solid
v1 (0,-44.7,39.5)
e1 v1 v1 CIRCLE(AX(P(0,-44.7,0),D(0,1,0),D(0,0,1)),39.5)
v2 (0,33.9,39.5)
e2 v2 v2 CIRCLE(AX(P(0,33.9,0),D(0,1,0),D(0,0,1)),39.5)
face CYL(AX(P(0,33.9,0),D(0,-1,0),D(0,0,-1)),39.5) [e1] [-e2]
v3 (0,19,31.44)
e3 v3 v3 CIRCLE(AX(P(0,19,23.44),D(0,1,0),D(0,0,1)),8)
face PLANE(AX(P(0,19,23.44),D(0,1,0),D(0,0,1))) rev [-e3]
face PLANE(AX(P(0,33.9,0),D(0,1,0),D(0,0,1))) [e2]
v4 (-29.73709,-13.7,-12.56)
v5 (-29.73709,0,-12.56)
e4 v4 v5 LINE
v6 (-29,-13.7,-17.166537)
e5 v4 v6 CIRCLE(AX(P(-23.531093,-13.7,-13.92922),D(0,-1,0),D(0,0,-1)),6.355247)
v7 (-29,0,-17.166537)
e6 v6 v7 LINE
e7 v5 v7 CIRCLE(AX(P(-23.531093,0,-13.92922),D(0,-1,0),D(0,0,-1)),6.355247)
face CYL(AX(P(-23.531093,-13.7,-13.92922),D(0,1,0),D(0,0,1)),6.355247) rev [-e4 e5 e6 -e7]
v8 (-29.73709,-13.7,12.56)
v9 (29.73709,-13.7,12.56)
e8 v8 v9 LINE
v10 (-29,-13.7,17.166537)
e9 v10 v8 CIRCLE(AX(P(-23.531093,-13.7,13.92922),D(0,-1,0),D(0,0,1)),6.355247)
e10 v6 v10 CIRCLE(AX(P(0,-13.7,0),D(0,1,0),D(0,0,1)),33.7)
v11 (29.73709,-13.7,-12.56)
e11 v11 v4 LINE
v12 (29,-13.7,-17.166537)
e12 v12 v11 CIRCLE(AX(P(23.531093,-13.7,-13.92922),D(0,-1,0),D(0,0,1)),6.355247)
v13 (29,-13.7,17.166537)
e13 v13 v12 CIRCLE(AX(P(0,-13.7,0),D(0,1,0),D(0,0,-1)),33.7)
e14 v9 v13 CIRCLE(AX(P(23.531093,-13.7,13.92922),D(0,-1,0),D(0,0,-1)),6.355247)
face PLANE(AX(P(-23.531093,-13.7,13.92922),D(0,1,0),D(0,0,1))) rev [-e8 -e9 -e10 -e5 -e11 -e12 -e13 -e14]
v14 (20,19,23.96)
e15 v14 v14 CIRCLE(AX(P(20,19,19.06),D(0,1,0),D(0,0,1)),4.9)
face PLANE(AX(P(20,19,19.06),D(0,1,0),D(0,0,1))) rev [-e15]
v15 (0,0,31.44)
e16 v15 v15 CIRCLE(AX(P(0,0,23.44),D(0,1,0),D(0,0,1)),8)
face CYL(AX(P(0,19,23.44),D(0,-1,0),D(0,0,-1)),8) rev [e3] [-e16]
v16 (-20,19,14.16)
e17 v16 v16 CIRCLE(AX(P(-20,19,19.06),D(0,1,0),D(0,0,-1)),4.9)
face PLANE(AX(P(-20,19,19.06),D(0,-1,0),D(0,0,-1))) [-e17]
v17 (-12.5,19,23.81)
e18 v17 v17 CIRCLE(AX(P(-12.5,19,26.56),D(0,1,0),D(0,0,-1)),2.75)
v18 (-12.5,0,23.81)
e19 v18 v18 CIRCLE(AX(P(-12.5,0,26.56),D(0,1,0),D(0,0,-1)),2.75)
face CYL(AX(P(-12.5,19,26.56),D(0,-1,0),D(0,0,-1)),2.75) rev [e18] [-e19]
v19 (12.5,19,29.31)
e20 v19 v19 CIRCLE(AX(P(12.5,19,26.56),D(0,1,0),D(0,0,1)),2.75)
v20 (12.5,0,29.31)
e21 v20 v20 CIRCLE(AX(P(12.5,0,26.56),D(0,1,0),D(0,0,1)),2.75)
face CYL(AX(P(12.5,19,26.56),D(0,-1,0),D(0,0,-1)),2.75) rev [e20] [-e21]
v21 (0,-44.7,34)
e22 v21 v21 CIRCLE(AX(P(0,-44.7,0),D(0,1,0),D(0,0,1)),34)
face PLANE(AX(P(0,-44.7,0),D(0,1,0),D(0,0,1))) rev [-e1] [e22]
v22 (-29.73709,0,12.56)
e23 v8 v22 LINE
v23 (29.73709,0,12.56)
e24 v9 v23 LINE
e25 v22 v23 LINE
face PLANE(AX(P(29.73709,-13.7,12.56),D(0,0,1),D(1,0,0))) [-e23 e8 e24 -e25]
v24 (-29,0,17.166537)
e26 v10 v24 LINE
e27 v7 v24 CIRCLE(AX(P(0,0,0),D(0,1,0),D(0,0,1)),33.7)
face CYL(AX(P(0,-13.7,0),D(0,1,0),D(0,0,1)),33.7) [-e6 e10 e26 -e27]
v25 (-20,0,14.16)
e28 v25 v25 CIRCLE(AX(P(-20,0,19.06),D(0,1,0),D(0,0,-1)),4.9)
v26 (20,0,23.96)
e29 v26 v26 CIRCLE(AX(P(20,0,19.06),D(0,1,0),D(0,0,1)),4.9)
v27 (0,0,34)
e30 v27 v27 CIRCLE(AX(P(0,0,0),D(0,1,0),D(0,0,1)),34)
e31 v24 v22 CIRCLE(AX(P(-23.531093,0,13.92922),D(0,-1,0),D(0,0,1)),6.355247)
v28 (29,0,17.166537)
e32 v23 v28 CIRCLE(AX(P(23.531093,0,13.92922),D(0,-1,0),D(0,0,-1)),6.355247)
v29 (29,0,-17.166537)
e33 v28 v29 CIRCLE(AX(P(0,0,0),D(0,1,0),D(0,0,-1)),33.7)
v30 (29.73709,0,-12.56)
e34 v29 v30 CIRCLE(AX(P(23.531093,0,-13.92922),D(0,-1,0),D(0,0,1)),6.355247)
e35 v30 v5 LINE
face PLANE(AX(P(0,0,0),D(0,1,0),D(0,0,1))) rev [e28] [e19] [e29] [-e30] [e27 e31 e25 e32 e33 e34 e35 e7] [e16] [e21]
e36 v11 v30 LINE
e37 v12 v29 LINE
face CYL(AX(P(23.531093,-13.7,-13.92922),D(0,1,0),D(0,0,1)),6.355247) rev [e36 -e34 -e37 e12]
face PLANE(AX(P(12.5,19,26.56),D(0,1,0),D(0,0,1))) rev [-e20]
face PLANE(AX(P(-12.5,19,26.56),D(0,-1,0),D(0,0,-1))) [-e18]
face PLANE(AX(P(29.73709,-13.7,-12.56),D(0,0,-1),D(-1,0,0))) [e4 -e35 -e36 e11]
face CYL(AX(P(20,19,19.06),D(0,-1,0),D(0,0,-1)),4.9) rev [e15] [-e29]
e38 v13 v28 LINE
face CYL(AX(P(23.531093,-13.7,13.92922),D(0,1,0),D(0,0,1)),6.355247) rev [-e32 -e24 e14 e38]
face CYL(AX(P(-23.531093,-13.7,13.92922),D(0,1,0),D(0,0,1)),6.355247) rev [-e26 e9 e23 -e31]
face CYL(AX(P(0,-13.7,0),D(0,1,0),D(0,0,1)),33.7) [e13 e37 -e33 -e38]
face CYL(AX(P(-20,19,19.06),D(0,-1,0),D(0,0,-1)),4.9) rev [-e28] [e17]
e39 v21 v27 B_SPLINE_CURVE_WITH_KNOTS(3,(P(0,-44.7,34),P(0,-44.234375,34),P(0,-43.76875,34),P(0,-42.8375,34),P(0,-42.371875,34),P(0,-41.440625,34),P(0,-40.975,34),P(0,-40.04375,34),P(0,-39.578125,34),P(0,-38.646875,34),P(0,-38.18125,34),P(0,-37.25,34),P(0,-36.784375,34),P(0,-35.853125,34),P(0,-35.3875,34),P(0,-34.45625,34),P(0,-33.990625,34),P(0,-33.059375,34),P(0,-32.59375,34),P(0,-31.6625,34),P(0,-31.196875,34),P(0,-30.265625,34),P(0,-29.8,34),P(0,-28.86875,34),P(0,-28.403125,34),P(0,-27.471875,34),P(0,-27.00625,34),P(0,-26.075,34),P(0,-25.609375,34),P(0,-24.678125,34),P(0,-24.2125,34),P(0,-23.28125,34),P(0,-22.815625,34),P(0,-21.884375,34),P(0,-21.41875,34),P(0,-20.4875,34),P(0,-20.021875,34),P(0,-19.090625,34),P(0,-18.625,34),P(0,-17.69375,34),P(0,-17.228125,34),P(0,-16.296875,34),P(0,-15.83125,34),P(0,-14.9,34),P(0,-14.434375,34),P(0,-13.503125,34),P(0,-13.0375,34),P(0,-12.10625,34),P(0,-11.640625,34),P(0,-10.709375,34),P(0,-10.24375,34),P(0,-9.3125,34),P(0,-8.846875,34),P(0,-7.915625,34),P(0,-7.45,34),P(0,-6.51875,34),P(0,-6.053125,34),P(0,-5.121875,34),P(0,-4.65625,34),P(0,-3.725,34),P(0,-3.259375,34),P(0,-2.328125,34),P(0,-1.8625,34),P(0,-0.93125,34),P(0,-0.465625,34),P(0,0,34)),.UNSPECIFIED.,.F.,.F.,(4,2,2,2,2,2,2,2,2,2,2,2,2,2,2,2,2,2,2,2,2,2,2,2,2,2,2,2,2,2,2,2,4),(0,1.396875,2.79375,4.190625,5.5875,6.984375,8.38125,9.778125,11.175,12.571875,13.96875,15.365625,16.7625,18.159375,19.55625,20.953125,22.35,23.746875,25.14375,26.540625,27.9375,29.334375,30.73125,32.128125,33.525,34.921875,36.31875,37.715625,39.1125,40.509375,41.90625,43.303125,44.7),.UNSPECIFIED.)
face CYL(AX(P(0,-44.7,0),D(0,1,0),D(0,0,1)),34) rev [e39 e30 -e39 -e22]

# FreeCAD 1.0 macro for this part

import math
import FreeCAD as App
import Part
import Sketcher

V = App.Vector

doc = App.newDocument("Part")
body = doc.addObject("PartDesign::Body", "Body")

sketch1 = doc.addObject("Sketcher::SketchObject", "Sketch")
body.addObject(sketch1)
sketch1.AttachmentSupport = (doc.XZ_Plane, [""])
sketch1.MapMode = "FlatFace"
sketch1.addGeometry(Part.Circle(V(0, 0, 0), V(0, 0, 1), 40), False)
sketch1.addConstraint(Sketcher.Constraint("Coincident", 0, 3, -1, 1))
sketch1.addConstraint(Sketcher.Constraint("Diameter", 0, 79.0))
pad1 = doc.addObject("PartDesign::Pad", "Pad")
body.addObject(pad1)
pad1.Profile = sketch1
pad1.Length = 33.9
pad1.Reversed = True

sketch2 = doc.addObject("Sketcher::SketchObject", "Sketch001")
body.addObject(sketch2)
sketch2.AttachmentSupport = (doc.XZ_Plane, [""])
sketch2.MapMode = "FlatFace"
sketch2.addGeometry(Part.LineSegment(V(29.7, -12.6, 0), V(-29.7, -12.6, 0)), False)
sketch2.addGeometry(Part.ArcOfCircle(Part.Circle(V(-23.5, -13.9, 0), V(0, 0, 1), 6.4), math.radians(168), math.radians(211)), False)
sketch2.addGeometry(Part.ArcOfCircle(Part.Circle(V(0, 0, 0), V(0, 0, 1), 33.7), math.radians(149), math.radians(211)), False)
sketch2.addGeometry(Part.ArcOfCircle(Part.Circle(V(-23.5, 13.9, 0), V(0, 0, 1), 6.4), math.radians(149), math.radians(192)), False)
sketch2.addGeometry(Part.LineSegment(V(-29.7, 12.6, 0), V(29.7, 12.6, 0)), False)
sketch2.addGeometry(Part.ArcOfCircle(Part.Circle(V(23.5, 13.9, 0), V(0, 0, 1), 6.4), math.radians(-12), math.radians(31)), False)
sketch2.addGeometry(Part.ArcOfCircle(Part.Circle(V(0, 0, 0), V(0, 0, 1), 33.7), math.radians(-31), math.radians(31)), False)
sketch2.addGeometry(Part.ArcOfCircle(Part.Circle(V(23.5, -13.9, 0), V(0, 0, 1), 6.4), math.radians(-31), math.radians(12)), False)
sketch2.addConstraint(Sketcher.Constraint("Coincident", 0, 2, 1, 1))
sketch2.addConstraint(Sketcher.Constraint("Tangent", 1, 2, 2, 2))
sketch2.addConstraint(Sketcher.Constraint("Tangent", 2, 1, 3, 1))
sketch2.addConstraint(Sketcher.Constraint("Coincident", 3, 2, 4, 1))
sketch2.addConstraint(Sketcher.Constraint("Coincident", 4, 2, 5, 1))
sketch2.addConstraint(Sketcher.Constraint("Tangent", 5, 2, 6, 2))
sketch2.addConstraint(Sketcher.Constraint("Tangent", 6, 1, 7, 1))
sketch2.addConstraint(Sketcher.Constraint("Coincident", 7, 2, 0, 1))
sketch2.addConstraint(Sketcher.Constraint("Horizontal", 0))
sketch2.addConstraint(Sketcher.Constraint("Horizontal", 4))
sketch2.addConstraint(Sketcher.Constraint("Coincident", 2, 3, -1, 1))
sketch2.addConstraint(Sketcher.Constraint("Coincident", 6, 3, -1, 1))
sketch2.addConstraint(Sketcher.Constraint("Equal", 1, 3))
sketch2.addConstraint(Sketcher.Constraint("Equal", 3, 5))
sketch2.addConstraint(Sketcher.Constraint("Equal", 2, 6))
sketch2.addConstraint(Sketcher.Constraint("Equal", 5, 7))
sketch2.addConstraint(Sketcher.Constraint("Symmetric", 0, 2, 4, 2, -1, 1))
sketch2.addConstraint(Sketcher.Constraint("Horizontal", 3, 3, 5, 3))
sketch2.addConstraint(Sketcher.Constraint("Horizontal", 1, 3, 7, 3))
sketch2.addConstraint(Sketcher.Constraint("Radius", 2, 33.7))
sketch2.addConstraint(Sketcher.Constraint("DistanceX", 1, 2, -1, 1, 29.0))
sketch2.addConstraint(Sketcher.Constraint("DistanceY", 0, 2, -1, 1, 12.56))
sketch2.addConstraint(Sketcher.Constraint("Radius", 1, 6.355247))
pad2 = doc.addObject("PartDesign::Pad", "Pad001")
body.addObject(pad2)
pad2.Profile = sketch2
pad2.Length = 13.7

sketch3 = doc.addObject("Sketcher::SketchObject", "Sketch002")
body.addObject(sketch3)
sketch3.AttachmentSupport = (doc.XZ_Plane, [""])
sketch3.MapMode = "FlatFace"
sketch3.AttachmentOffset = App.Placement(V(0, 0, 44.7), App.Rotation())
sketch3.addGeometry(Part.Circle(V(0, 0, 0), V(0, 0, 1), 40), False)
sketch3.addGeometry(Part.Circle(V(0, 0, 0), V(0, 0, 1), 34), False)
sketch3.addConstraint(Sketcher.Constraint("Coincident", 0, 3, -1, 1))
sketch3.addConstraint(Sketcher.Constraint("Coincident", 1, 3, -1, 1))
sketch3.addConstraint(Sketcher.Constraint("Diameter", 0, 79.0))
sketch3.addConstraint(Sketcher.Constraint("Diameter", 1, 68.0))
pad3 = doc.addObject("PartDesign::Pad", "Pad002")
body.addObject(pad3)
pad3.Profile = sketch3
pad3.Length = 44.7
pad3.Reversed = True

sketch4 = doc.addObject("Sketcher::SketchObject", "Sketch003")
body.addObject(sketch4)
sketch4.AttachmentSupport = (doc.XZ_Plane, [""])
sketch4.MapMode = "FlatFace"
sketch4.addGeometry(Part.Circle(V(0, 23.4, 0), V(0, 0, 1), 8), False)
sketch4.addGeometry(Part.Circle(V(12.5, 26.6, 0), V(0, 0, 1), 2.8), False)
sketch4.addGeometry(Part.Circle(V(20, 19.1, 0), V(0, 0, 1), 4.9), False)
sketch4.addGeometry(Part.Circle(V(-12.5, 26.6, 0), V(0, 0, 1), 2.8), False)
sketch4.addGeometry(Part.Circle(V(-20, 19.1, 0), V(0, 0, 1), 4.9), False)
sketch4.addConstraint(Sketcher.Constraint("Equal", 1, 3))
sketch4.addConstraint(Sketcher.Constraint("Equal", 2, 4))
sketch4.addConstraint(Sketcher.Constraint("Symmetric", 1, 3, 3, 3, -2))
sketch4.addConstraint(Sketcher.Constraint("Symmetric", 2, 3, 4, 3, -2))
sketch4.addConstraint(Sketcher.Constraint("PointOnObject", 0, 3, -2))
sketch4.addConstraint(Sketcher.Constraint("Diameter", 0, 16.0))
sketch4.addConstraint(Sketcher.Constraint("Diameter", 1, 5.5))
sketch4.addConstraint(Sketcher.Constraint("Diameter", 2, 9.8))
sketch4.addConstraint(Sketcher.Constraint("DistanceX", -1, 1, 2, 3, 20.0))
sketch4.addConstraint(Sketcher.Constraint("DistanceX", 3, 3, 1, 3, 25.0))
sketch4.addConstraint(Sketcher.Constraint("DistanceY", 2, 3, 1, 3, 7.5))
sketch4.addConstraint(Sketcher.Constraint("DistanceY", -1, 1, 0, 3, 23.44))
sketch4.addConstraint(Sketcher.Constraint("DistanceY", -1, 1, 1, 3, 26.56))
pocket1 = doc.addObject("PartDesign::Pocket", "Pocket")
body.addObject(pocket1)
pocket1.Profile = sketch4
pocket1.Length = 19

doc.recompute()
